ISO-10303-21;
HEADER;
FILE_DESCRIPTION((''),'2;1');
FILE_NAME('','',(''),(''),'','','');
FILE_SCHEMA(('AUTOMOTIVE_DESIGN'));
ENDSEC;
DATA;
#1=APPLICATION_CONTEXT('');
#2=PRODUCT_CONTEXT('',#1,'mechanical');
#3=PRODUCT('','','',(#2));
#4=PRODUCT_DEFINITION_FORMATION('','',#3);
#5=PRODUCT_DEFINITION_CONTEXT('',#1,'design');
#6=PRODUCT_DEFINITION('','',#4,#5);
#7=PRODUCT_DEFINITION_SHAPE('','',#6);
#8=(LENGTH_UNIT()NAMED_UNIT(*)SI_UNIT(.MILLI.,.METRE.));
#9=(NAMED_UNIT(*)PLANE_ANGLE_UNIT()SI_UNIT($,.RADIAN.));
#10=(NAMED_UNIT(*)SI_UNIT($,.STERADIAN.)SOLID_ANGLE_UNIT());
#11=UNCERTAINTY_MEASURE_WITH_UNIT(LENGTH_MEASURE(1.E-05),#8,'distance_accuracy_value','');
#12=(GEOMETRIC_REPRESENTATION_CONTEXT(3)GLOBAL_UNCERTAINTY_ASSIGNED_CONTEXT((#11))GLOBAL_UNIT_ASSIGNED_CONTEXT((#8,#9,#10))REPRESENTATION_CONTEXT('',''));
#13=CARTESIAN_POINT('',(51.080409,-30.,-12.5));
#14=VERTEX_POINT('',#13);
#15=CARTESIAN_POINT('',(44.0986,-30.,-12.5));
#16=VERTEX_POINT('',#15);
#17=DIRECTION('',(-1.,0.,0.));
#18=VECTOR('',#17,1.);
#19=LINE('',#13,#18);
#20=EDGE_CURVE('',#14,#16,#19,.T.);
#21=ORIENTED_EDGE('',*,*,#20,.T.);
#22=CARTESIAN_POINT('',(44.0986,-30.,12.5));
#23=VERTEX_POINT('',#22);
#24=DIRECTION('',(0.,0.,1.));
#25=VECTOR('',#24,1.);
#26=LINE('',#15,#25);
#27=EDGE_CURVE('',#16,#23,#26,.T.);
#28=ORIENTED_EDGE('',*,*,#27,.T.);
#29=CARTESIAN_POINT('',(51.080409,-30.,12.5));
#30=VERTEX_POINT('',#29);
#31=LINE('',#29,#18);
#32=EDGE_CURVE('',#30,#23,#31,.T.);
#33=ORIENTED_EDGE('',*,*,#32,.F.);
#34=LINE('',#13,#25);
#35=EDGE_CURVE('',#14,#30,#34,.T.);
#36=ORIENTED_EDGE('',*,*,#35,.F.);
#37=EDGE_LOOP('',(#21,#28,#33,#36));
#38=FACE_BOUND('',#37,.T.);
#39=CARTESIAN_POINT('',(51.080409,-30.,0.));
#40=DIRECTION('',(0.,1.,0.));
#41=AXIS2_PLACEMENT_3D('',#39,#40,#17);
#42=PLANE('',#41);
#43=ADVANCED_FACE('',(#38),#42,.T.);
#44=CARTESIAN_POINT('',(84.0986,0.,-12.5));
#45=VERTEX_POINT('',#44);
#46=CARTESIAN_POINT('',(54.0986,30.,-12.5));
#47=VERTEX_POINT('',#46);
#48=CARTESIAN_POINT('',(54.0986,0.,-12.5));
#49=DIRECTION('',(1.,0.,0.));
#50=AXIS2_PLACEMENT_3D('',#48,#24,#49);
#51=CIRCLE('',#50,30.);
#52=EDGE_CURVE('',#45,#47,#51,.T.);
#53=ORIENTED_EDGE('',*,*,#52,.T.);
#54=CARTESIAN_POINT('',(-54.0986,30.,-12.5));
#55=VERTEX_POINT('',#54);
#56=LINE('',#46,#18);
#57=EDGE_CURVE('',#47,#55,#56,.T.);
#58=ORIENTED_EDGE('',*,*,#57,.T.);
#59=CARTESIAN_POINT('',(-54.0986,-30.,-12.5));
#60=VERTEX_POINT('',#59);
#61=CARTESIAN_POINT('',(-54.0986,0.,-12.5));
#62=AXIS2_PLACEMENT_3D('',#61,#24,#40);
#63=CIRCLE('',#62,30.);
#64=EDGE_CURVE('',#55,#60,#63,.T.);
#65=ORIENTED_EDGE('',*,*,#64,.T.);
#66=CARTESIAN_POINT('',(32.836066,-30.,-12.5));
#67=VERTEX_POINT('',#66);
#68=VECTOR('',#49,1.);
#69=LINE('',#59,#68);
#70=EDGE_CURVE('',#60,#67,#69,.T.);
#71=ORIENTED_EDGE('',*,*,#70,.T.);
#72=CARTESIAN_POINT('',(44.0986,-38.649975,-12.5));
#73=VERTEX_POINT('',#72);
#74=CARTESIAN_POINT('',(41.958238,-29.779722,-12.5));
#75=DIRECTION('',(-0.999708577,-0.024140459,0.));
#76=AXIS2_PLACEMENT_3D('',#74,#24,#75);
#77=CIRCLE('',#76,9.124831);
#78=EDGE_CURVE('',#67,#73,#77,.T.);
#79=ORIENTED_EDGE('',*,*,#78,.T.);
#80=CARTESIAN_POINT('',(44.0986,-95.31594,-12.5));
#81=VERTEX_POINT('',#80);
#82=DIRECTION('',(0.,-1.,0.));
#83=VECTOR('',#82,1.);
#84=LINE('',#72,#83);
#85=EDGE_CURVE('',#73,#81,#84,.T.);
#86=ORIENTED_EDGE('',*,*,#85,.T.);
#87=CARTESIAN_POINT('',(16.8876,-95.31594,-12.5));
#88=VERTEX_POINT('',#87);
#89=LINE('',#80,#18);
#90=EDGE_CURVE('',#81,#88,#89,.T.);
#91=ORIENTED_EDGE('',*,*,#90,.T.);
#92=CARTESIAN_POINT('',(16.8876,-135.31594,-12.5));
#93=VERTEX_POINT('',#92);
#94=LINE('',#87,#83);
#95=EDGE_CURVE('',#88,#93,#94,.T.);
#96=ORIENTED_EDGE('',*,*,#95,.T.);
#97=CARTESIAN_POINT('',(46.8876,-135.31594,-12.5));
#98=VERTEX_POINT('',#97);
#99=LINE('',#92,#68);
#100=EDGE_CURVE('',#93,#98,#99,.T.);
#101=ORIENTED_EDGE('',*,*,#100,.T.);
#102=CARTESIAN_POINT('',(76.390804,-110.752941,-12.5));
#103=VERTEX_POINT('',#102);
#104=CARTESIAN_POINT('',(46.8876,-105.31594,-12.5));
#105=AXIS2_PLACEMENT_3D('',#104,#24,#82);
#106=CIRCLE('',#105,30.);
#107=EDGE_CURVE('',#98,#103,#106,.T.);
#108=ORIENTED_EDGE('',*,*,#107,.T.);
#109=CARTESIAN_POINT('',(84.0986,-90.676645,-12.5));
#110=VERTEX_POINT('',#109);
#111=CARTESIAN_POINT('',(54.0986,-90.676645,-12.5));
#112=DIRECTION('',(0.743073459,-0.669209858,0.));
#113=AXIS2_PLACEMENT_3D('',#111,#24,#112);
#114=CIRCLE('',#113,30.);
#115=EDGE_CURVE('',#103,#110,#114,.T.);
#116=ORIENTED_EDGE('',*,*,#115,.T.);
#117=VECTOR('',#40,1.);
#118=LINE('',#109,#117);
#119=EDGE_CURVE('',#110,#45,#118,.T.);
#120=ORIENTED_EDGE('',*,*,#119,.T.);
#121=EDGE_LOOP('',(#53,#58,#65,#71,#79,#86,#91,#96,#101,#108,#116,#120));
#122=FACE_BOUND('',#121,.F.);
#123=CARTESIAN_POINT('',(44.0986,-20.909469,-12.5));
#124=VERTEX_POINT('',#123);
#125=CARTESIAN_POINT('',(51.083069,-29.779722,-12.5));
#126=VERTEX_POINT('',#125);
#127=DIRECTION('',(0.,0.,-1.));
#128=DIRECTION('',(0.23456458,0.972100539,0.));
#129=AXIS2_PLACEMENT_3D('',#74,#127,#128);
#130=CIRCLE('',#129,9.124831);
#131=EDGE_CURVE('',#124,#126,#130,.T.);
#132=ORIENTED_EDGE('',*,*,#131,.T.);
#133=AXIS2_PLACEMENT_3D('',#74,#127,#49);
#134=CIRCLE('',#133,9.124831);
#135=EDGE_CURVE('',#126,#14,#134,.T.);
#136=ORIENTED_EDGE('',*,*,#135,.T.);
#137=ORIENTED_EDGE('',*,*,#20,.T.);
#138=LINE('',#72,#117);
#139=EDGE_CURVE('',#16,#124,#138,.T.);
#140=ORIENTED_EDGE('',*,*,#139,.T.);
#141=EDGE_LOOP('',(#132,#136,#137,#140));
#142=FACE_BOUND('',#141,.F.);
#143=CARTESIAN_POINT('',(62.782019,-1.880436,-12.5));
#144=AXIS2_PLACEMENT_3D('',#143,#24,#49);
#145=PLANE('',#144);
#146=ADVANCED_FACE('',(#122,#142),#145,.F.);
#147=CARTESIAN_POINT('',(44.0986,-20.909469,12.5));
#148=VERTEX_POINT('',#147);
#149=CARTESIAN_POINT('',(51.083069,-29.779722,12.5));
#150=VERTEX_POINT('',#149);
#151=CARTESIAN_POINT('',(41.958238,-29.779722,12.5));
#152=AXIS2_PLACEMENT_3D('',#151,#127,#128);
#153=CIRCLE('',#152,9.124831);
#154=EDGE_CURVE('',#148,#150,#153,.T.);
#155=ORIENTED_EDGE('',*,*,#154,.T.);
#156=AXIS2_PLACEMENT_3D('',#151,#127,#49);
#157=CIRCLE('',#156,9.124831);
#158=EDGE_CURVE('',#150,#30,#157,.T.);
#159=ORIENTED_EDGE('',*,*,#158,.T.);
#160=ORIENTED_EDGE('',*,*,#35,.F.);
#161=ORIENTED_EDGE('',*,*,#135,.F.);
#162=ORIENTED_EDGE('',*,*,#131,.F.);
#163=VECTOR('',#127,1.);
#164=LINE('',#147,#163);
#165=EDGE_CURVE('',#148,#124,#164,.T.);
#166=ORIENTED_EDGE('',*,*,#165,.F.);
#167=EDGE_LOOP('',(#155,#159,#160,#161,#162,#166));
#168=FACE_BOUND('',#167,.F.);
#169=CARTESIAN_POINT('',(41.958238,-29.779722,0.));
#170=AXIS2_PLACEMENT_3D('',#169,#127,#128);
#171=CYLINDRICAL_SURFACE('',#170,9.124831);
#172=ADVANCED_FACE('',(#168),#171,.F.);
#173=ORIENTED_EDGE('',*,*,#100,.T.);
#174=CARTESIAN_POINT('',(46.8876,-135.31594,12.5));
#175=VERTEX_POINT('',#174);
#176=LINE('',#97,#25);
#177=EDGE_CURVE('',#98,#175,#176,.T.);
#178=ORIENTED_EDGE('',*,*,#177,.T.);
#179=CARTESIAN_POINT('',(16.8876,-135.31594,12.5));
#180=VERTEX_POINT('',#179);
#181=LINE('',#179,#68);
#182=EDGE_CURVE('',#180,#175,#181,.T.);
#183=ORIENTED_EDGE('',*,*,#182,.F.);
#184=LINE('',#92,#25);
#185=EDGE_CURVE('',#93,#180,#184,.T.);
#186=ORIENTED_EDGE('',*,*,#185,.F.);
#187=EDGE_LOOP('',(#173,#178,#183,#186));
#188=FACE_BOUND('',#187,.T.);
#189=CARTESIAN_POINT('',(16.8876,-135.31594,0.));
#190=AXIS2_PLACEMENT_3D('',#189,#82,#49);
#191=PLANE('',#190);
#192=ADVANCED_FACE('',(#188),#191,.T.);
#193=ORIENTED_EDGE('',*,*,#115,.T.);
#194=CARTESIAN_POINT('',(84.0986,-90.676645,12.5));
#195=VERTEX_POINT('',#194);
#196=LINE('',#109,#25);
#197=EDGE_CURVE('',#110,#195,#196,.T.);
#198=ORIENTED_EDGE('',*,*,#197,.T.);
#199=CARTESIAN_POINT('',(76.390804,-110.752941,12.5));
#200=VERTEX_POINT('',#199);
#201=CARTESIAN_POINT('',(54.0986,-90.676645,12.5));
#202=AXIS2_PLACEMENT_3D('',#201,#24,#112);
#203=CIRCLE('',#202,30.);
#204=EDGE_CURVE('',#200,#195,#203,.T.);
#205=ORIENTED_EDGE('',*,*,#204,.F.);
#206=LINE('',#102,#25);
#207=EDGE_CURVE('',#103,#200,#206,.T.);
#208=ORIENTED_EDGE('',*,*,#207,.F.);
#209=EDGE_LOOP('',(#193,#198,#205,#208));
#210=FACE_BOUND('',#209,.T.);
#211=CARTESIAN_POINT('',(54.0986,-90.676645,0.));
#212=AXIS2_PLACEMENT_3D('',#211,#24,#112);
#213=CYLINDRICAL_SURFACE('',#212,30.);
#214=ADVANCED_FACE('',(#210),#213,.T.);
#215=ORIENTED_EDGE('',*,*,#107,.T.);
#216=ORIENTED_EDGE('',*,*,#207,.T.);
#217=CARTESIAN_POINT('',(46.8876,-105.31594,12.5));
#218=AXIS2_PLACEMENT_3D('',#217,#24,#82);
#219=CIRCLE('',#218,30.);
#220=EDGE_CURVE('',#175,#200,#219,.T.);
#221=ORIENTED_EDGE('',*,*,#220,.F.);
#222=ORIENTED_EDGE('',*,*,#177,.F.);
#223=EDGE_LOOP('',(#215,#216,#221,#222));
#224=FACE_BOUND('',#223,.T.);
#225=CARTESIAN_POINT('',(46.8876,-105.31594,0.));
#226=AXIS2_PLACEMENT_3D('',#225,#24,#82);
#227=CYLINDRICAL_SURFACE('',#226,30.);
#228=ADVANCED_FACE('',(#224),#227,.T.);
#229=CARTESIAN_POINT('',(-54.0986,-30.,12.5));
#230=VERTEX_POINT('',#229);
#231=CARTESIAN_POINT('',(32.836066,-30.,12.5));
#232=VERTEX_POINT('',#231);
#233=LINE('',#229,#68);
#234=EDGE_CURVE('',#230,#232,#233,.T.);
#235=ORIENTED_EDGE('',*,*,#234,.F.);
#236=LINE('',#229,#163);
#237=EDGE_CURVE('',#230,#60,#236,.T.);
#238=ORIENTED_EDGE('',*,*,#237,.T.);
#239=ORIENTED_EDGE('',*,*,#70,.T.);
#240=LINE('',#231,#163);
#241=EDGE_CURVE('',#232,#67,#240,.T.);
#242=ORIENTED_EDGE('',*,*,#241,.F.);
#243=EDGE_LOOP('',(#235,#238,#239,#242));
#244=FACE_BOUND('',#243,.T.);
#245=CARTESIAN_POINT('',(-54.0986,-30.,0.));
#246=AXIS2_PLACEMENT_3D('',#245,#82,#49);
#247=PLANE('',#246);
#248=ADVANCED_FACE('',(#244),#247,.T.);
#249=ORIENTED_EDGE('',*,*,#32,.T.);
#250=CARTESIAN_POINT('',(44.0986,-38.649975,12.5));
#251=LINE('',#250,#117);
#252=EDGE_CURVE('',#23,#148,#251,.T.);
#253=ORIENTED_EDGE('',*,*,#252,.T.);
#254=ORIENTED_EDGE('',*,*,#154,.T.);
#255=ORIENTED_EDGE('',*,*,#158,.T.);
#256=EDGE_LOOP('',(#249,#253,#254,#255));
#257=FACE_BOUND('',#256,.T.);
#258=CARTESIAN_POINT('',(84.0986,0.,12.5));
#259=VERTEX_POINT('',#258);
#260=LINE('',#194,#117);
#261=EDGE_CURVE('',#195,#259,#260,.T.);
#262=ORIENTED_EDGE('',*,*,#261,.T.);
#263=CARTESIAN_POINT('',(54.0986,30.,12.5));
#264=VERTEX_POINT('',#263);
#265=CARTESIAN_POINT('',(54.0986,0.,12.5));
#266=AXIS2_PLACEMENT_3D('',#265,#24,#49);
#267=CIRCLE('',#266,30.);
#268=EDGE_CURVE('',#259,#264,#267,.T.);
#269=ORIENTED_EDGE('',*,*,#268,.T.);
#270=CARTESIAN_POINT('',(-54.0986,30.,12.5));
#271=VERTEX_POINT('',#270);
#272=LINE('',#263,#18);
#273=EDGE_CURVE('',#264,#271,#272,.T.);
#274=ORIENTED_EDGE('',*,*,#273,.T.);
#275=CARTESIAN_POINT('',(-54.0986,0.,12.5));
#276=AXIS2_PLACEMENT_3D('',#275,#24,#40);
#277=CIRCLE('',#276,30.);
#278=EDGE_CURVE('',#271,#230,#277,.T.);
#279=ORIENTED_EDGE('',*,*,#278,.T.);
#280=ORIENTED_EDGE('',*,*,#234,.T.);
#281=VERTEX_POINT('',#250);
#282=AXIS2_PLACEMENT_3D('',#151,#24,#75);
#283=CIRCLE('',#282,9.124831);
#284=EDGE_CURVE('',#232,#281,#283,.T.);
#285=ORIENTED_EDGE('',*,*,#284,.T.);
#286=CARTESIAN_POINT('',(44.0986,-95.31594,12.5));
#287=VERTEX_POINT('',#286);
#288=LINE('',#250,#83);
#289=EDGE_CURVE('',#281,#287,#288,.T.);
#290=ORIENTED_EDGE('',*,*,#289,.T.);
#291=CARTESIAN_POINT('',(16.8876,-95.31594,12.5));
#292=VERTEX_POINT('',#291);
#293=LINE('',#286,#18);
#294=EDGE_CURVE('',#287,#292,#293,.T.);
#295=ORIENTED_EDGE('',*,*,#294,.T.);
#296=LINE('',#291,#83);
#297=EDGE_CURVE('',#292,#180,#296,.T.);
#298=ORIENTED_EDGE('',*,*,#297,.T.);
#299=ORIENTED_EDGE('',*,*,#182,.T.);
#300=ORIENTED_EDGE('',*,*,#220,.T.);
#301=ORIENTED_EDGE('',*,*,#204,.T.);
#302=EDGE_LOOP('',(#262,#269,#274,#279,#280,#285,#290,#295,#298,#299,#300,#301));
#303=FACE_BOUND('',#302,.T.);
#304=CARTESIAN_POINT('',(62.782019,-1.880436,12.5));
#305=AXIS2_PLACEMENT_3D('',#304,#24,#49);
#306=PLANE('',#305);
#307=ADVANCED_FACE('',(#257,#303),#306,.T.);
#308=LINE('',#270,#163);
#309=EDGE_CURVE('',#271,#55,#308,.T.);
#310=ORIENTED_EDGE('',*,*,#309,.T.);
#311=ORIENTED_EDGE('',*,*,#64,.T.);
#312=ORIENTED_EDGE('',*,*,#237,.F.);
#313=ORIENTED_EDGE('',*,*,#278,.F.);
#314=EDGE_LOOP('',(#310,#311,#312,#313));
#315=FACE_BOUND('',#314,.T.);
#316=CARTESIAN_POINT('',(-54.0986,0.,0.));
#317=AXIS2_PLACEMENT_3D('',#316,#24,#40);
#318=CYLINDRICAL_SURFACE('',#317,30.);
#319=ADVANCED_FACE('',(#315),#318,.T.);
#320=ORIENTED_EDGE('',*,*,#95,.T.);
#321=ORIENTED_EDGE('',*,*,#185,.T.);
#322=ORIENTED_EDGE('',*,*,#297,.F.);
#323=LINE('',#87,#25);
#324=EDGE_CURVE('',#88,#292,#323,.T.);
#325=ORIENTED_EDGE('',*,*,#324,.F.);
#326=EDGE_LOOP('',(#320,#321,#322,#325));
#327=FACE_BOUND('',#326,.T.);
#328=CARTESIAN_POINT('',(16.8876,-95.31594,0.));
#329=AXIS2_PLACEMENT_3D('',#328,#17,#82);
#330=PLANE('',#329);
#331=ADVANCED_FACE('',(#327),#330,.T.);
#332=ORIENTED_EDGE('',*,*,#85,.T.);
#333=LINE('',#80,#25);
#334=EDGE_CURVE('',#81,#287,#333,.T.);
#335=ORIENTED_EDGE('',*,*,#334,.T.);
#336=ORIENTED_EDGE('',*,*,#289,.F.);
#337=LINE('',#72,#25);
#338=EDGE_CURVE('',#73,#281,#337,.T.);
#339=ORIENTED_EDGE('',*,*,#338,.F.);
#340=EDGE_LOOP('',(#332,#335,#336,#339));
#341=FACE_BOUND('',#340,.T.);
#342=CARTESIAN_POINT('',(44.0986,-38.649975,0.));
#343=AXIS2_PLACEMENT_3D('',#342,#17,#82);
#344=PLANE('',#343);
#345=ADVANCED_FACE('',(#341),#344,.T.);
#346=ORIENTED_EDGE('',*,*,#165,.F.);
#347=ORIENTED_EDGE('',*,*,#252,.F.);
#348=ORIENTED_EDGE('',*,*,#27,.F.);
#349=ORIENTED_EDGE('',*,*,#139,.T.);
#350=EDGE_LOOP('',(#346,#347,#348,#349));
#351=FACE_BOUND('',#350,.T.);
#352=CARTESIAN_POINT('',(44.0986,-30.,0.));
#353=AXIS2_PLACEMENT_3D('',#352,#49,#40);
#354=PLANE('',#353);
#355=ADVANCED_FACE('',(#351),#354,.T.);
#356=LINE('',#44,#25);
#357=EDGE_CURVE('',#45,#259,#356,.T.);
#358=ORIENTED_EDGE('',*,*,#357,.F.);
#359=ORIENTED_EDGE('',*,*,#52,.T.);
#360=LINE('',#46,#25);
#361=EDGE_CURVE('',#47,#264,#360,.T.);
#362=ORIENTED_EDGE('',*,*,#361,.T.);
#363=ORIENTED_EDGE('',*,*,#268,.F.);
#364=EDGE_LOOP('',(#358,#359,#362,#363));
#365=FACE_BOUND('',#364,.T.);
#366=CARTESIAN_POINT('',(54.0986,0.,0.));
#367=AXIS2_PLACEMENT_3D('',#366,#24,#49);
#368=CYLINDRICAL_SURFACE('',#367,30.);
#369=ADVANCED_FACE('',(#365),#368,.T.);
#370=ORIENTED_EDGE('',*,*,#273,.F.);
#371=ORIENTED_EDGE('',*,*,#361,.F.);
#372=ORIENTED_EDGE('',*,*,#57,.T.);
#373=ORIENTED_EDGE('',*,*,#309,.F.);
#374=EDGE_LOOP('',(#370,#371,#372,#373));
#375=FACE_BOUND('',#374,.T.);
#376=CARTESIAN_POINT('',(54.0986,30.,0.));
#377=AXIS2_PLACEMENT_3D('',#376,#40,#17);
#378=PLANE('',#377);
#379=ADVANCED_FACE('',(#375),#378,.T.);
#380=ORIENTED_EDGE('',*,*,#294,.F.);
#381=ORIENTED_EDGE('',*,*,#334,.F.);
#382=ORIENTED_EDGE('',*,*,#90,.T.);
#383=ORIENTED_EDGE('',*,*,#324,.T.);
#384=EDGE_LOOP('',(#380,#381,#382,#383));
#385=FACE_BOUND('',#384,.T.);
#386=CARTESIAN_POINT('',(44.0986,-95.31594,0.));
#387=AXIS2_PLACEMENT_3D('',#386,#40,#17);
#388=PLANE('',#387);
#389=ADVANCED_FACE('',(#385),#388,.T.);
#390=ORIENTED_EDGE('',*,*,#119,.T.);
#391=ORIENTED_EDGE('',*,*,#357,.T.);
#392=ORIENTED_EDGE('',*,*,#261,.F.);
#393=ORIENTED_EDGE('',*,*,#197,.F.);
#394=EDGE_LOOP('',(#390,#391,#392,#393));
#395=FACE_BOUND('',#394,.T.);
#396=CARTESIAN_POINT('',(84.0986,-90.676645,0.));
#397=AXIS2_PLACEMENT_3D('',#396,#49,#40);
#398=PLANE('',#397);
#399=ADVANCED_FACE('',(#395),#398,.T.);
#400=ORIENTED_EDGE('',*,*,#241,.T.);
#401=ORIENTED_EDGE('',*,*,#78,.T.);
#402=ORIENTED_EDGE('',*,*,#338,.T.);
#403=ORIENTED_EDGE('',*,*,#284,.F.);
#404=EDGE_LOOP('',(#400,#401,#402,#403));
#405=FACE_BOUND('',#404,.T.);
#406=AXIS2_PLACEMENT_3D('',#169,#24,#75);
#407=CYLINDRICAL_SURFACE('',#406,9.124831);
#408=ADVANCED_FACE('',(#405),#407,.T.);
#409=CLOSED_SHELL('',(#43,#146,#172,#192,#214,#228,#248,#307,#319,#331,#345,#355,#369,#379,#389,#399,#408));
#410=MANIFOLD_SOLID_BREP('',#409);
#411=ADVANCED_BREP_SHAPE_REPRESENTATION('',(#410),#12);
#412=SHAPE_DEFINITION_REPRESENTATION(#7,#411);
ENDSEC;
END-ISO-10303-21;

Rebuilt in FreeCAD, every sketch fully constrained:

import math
import FreeCAD as App
import Part
import Sketcher
from FreeCAD import Vector

doc = App.newDocument("Part")
body = doc.addObject("PartDesign::Body", "Body")

# Sketch on XY plane
sketch1 = body.newObject("Sketcher::SketchObject", "Sketch")
sketch1.AttachmentSupport = (doc.getObject("XY_Plane"), [""])
sketch1.MapMode = "FlatFace"
sketch1.addGeometry([
    Part.ArcOfCircle(Part.Circle(Vector(41.958238, -29.779722, 0), Vector(0, 0, 1), 9.124831), math.radians(-178.616719), math.radians(-76.434042)),  # 0
    Part.LineSegment(Vector(44.0986, -38.649975, 0), Vector(44.0986, -95.31594, 0)),  # 1
    Part.LineSegment(Vector(44.0986, -95.31594, 0), Vector(16.8876, -95.31594, 0)),  # 2
    Part.LineSegment(Vector(16.8876, -95.31594, 0), Vector(16.8876, -135.31594, 0)),  # 3
    Part.LineSegment(Vector(16.8876, -135.31594, 0), Vector(46.8876, -135.31594, 0)),  # 4
    Part.ArcOfCircle(Part.Circle(Vector(46.8876, -105.31594, 0), Vector(0, 0, 1), 30), math.radians(-90), math.radians(-10.441609)),  # 5
    Part.ArcOfCircle(Part.Circle(Vector(54.0986, -90.676645, 0), Vector(0, 0, 1), 30), math.radians(-42.006111), math.radians(0)),  # 6
    Part.LineSegment(Vector(84.0986, -90.676645, 0), Vector(84.0986, 0, 0)),  # 7
    Part.ArcOfCircle(Part.Circle(Vector(54.0986, 0, 0), Vector(0, 0, 1), 30), math.radians(0), math.radians(90)),  # 8
    Part.LineSegment(Vector(54.0986, 30, 0), Vector(-54.0986, 30, 0)),  # 9
    Part.ArcOfCircle(Part.Circle(Vector(-54.0986, 0, 0), Vector(0, 0, 1), 30), math.radians(90), math.radians(270)),  # 10
    Part.LineSegment(Vector(-54.0986, -30, 0), Vector(32.836066, -30, 0)),  # 11
    Part.ArcOfCircle(Part.Circle(Vector(41.958238, -29.779722, 0), Vector(0, 0, 1), 9.124831), math.radians(-1.383281), math.radians(0)),  # 12
    Part.LineSegment(Vector(51.080409, -30, 0), Vector(44.0986, -30, 0)),  # 13
    Part.LineSegment(Vector(44.0986, -30, 0), Vector(44.0986, -20.909469, 0)),  # 14
    Part.ArcOfCircle(Part.Circle(Vector(41.958238, -29.779722, 0), Vector(0, 0, 1), 9.124831), math.radians(0), math.radians(76.434042)),  # 15
], False)
sketch1.addConstraint([
    Sketcher.Constraint("Coincident", 0, 2, 1, 1),
    Sketcher.Constraint("Coincident", 1, 2, 2, 1),
    Sketcher.Constraint("Coincident", 2, 2, 3, 1),
    Sketcher.Constraint("Coincident", 3, 2, 4, 1),
    Sketcher.Constraint("Tangent", 4, 2, 5, 1),
    Sketcher.Constraint("Coincident", 5, 2, 6, 1),
    Sketcher.Constraint("Tangent", 6, 2, 7, 1),
    Sketcher.Constraint("Tangent", 7, 2, 8, 1),
    Sketcher.Constraint("Tangent", 8, 2, 9, 1),
    Sketcher.Constraint("Tangent", 9, 2, 10, 1),
    Sketcher.Constraint("Tangent", 10, 2, 11, 1),
    Sketcher.Constraint("Coincident", 11, 2, 0, 1),
    Sketcher.Constraint("Coincident", 12, 1, 13, 1),
    Sketcher.Constraint("Coincident", 13, 2, 14, 1),
    Sketcher.Constraint("Coincident", 14, 2, 15, 2),
    Sketcher.Constraint("Tangent", 15, 1, 12, 2),
    Sketcher.Constraint("Vertical", 1),
    Sketcher.Constraint("Horizontal", 2),
    Sketcher.Constraint("Vertical", 3),
    Sketcher.Constraint("Horizontal", 4),
    Sketcher.Constraint("Vertical", 7),
    Sketcher.Constraint("Horizontal", 9),
    Sketcher.Constraint("Horizontal", 11),
    Sketcher.Constraint("Horizontal", 13),
    Sketcher.Constraint("Vertical", 14),
    Sketcher.Constraint("Coincident", 12, 3, 0, 3),
    Sketcher.Constraint("Equal", 5, 6),
    Sketcher.Constraint("Equal", 6, 8),
    Sketcher.Constraint("Equal", 8, 10),
    Sketcher.Constraint("Equal", 0, 12),
    Sketcher.Constraint("Equal", 12, 15),
    Sketcher.Constraint("Symmetric", 8, 3, 10, 3, -1, 1),
    Sketcher.Constraint("Horizontal", 11, 2, 12, 1),
    Sketcher.Constraint("Horizontal", 12, 3, 15, 1),
    Sketcher.Constraint("Vertical", 1, 2, 13, 2),
    Sketcher.Constraint("Radius", 5, 30.0),
    Sketcher.Constraint("DistanceX", 4, 1, 4, 2, 30.0),
    Sketcher.Constraint("DistanceY", 3, 2, 3, 1, 40.0),
    Sketcher.Constraint("DistanceX", 0, 2, 8, 3, 10.0),
    Sketcher.Constraint("DistanceX", 2, 2, 2, 1, 27.211),
    Sketcher.Constraint("Radius", 0, 9.124831),
    Sketcher.Constraint("DistanceX", 9, 2, 9, 1, 108.1972),
    Sketcher.Constraint("DistanceY", 5, 2, 5, 3, 5.437001),
    Sketcher.Constraint("DistanceX", 13, 2, 13, 1, 6.98181),
    Sketcher.Constraint("DistanceY", 14, 1, 14, 2, 9.090531),
    Sketcher.Constraint("DistanceY", 1, 2, 1, 1, 56.665964),
])
pad1 = body.newObject("PartDesign::Pad", "Pad")
pad1.Profile = sketch1
pad1.Length = 25
pad1.Midplane = True

doc.recompute()
